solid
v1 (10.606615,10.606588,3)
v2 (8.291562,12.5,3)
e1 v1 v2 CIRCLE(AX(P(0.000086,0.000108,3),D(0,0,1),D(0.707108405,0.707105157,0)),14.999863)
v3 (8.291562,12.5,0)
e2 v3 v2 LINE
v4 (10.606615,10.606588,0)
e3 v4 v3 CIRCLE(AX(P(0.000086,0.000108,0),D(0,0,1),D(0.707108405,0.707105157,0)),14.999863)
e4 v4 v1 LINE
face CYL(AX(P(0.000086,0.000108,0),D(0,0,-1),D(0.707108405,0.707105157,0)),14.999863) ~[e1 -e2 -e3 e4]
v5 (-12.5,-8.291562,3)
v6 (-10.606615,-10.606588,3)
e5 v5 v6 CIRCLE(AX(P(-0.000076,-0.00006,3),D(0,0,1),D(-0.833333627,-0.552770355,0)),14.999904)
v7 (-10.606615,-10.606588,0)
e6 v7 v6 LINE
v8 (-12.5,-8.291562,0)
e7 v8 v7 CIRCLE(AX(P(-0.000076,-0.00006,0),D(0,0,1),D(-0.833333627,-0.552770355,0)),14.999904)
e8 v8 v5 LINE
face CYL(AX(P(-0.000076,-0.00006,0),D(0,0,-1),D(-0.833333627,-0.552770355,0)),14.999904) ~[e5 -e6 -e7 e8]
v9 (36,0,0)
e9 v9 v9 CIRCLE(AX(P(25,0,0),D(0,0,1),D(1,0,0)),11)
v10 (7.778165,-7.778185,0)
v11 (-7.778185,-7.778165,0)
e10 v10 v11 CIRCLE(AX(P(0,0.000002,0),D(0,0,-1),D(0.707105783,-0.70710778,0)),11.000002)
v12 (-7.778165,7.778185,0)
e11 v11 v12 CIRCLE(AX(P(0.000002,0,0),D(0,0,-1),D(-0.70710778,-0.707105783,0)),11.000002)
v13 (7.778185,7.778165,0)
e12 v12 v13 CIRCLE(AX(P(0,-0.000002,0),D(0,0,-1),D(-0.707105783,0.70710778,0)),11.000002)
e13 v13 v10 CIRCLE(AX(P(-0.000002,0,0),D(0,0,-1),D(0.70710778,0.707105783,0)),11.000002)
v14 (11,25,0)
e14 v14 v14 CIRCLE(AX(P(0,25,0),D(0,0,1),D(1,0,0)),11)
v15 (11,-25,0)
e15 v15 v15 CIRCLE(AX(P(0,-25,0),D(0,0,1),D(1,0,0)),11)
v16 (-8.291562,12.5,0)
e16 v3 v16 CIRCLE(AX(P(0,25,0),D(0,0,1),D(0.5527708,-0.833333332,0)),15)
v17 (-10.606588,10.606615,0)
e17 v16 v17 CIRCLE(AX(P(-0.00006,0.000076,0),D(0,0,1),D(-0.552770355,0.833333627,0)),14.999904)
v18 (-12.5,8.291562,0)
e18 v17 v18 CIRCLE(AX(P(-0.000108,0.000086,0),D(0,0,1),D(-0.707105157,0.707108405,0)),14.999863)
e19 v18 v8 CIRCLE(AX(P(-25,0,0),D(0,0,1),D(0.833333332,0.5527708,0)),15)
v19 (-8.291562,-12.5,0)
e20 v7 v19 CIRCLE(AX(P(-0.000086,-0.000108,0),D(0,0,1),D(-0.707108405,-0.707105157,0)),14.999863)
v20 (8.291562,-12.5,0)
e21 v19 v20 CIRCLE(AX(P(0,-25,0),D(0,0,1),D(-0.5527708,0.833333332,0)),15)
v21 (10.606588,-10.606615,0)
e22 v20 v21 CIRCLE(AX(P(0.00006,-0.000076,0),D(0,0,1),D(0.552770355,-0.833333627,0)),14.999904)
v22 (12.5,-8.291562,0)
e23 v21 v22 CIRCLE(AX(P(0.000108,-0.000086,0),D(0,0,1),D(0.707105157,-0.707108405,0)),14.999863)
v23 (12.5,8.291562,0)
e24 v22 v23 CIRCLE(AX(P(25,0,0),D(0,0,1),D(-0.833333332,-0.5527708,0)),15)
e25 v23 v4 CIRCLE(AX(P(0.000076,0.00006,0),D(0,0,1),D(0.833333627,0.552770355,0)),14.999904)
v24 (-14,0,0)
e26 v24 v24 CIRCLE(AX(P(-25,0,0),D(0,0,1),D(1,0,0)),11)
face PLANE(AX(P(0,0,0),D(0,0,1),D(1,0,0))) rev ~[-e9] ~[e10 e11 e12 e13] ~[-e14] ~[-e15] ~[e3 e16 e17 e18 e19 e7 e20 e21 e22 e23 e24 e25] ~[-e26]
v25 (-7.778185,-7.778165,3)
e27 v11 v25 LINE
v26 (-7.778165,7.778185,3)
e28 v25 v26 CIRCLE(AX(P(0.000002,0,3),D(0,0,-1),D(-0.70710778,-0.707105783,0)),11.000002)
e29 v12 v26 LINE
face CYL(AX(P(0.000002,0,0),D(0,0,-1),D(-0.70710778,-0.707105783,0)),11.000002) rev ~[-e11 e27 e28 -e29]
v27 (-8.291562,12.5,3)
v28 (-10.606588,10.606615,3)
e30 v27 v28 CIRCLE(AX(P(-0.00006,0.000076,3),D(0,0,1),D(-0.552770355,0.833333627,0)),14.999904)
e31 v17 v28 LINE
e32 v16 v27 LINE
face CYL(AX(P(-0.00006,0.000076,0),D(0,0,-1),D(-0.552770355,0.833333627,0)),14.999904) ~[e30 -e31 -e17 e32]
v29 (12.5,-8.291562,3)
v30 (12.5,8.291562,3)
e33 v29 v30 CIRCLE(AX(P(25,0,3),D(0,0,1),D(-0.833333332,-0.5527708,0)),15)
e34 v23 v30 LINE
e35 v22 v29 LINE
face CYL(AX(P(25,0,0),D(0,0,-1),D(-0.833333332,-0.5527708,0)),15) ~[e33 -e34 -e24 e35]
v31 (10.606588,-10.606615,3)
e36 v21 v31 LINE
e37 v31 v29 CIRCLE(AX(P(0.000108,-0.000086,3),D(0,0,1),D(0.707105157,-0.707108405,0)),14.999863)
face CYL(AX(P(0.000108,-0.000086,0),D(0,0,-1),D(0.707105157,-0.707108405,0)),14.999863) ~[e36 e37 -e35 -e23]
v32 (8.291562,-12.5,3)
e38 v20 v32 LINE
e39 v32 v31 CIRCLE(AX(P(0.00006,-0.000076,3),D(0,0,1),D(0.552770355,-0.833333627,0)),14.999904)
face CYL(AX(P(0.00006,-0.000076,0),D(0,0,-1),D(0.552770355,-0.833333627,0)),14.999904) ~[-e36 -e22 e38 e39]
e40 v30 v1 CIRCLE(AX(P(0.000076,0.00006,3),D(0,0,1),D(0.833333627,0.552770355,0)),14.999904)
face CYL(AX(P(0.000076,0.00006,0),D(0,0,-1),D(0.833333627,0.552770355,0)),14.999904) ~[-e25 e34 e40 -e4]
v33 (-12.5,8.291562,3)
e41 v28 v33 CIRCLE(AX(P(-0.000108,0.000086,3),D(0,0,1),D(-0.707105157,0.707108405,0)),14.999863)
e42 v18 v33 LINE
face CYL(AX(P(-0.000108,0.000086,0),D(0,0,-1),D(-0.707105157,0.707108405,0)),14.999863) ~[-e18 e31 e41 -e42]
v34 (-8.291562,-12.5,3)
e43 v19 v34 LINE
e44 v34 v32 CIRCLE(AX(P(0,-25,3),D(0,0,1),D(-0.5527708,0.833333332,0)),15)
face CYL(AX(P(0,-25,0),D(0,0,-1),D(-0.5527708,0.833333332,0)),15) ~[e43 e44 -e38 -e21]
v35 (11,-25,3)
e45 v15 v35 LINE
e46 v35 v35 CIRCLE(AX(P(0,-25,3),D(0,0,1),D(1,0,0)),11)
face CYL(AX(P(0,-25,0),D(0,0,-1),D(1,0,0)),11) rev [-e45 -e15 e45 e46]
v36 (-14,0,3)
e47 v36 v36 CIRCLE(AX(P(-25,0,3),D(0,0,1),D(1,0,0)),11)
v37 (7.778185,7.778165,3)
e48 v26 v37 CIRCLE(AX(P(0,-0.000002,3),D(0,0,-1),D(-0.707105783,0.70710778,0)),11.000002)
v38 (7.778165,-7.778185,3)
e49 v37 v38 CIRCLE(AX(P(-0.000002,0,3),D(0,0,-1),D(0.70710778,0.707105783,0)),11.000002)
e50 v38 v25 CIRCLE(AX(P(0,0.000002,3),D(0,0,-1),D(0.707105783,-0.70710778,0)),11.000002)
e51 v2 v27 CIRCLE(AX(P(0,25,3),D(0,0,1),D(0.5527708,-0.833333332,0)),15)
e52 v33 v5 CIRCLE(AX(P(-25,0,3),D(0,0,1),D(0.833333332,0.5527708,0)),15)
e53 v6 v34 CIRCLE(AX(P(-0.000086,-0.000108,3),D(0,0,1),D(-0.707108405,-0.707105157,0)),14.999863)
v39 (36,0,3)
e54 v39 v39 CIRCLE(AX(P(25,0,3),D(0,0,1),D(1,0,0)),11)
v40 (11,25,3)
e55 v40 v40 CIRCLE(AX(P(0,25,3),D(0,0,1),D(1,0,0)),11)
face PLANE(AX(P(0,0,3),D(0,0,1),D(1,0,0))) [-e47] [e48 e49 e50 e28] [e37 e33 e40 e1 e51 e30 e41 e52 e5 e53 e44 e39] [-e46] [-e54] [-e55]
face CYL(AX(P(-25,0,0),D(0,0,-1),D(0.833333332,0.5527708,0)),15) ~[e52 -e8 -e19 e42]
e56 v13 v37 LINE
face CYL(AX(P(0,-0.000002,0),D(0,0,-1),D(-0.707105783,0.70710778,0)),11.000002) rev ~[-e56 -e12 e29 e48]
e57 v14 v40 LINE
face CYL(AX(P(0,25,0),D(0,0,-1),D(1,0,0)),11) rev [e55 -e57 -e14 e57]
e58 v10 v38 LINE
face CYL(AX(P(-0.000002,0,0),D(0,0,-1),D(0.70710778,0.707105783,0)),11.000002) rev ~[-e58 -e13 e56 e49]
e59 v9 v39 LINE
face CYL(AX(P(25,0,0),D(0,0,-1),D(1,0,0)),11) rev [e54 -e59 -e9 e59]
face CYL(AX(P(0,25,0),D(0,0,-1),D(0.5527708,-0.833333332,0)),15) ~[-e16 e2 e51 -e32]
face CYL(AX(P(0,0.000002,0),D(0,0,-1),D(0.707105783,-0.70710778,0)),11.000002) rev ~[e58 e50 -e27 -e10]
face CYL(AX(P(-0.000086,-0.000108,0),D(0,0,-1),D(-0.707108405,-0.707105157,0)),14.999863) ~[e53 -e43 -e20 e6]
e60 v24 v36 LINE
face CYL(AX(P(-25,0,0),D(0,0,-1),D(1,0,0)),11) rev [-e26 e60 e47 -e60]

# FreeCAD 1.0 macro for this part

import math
import FreeCAD as App
import Part
import Sketcher

doc = App.newDocument("Part")
body = doc.addObject("PartDesign::Body", "Body")

# Sketch on XY plane
sketch1 = doc.addObject("Sketcher::SketchObject", "Sketch")
body.addObject(sketch1)
sketch1.AttachmentSupport = (doc.XY_Plane, [""])
sketch1.MapMode = "FlatFace"
sketch1.addGeometry(Part.ArcOfCircle(Part.Circle(App.Vector(0, 25, 0), App.Vector(0, 0, 1), 15), math.radians(-56.44269), math.radians(236.44269)), False)
sketch1.addGeometry(Part.ArcOfCircle(Part.Circle(App.Vector(-0.00006, 0.000076, 0), App.Vector(0, 0, 1), 14.999904), math.radians(123.557279), math.radians(134.99997)), False)
sketch1.addGeometry(Part.ArcOfCircle(Part.Circle(App.Vector(-0.000108, 0.000086, 0), App.Vector(0, 0, 1), 14.999863), math.radians(134.999868), math.radians(146.442737)), False)
sketch1.addGeometry(Part.ArcOfCircle(Part.Circle(App.Vector(-25, 0, 0), App.Vector(0, 0, 1), 15), math.radians(33.55731), math.radians(326.44269)), False)
sketch1.addGeometry(Part.ArcOfCircle(Part.Circle(App.Vector(-0.000076, -0.00006, 0), App.Vector(0, 0, 1), 14.999904), math.radians(-146.442721), math.radians(-135.00003)), False)
sketch1.addGeometry(Part.ArcOfCircle(Part.Circle(App.Vector(-0.000086, -0.000108, 0), App.Vector(0, 0, 1), 14.999863), math.radians(-135.000132), math.radians(-123.557263)), False)
sketch1.addGeometry(Part.ArcOfCircle(Part.Circle(App.Vector(0, -25, 0), App.Vector(0, 0, 1), 15), math.radians(123.55731), math.radians(416.44269)), False)
sketch1.addGeometry(Part.ArcOfCircle(Part.Circle(App.Vector(0.00006, -0.000076, 0), App.Vector(0, 0, 1), 14.999904), math.radians(-56.442721), math.radians(-45.00003)), False)
sketch1.addGeometry(Part.ArcOfCircle(Part.Circle(App.Vector(0.000108, -0.000086, 0), App.Vector(0, 0, 1), 14.999863), math.radians(-45.000132), math.radians(-33.557263)), False)
sketch1.addGeometry(Part.ArcOfCircle(Part.Circle(App.Vector(25, 0, 0), App.Vector(0, 0, 1), 15), math.radians(-146.44269), math.radians(146.44269)), False)
sketch1.addGeometry(Part.ArcOfCircle(Part.Circle(App.Vector(0.000076, 0.00006, 0), App.Vector(0, 0, 1), 14.999904), math.radians(33.557279), math.radians(44.99997)), False)
sketch1.addGeometry(Part.ArcOfCircle(Part.Circle(App.Vector(0.000086, 0.000108, 0), App.Vector(0, 0, 1), 14.999863), math.radians(44.999868), math.radians(56.442737)), False)
sketch1.addGeometry(Part.Circle(App.Vector(0, -25, 0), App.Vector(0, 0, 1), 11), False)
sketch1.addGeometry(Part.Circle(App.Vector(-25, 0, 0), App.Vector(0, 0, 1), 11), False)
sketch1.addGeometry(Part.ArcOfCircle(Part.Circle(App.Vector(0.000002, 0, 0), App.Vector(0, 0, 1), 11.000002), math.radians(134.999934), math.radians(224.999919)), False)
sketch1.addGeometry(Part.ArcOfCircle(Part.Circle(App.Vector(0, -0.000002, 0), App.Vector(0, 0, 1), 11.000002), math.radians(44.999934), math.radians(134.999919)), False)
sketch1.addGeometry(Part.ArcOfCircle(Part.Circle(App.Vector(-0.000002, 0, 0), App.Vector(0, 0, 1), 11.000002), math.radians(-45.000066), math.radians(44.999919)), False)
sketch1.addGeometry(Part.ArcOfCircle(Part.Circle(App.Vector(0, 0.000002, 0), App.Vector(0, 0, 1), 11.000002), math.radians(-135.000066), math.radians(-45.000081)), False)
sketch1.addGeometry(Part.Circle(App.Vector(25, 0, 0), App.Vector(0, 0, 1), 11), False)
sketch1.addGeometry(Part.Circle(App.Vector(0, 25, 0), App.Vector(0, 0, 1), 11), False)
sketch1.addConstraint(Sketcher.Constraint("Coincident", 0, 2, 1, 1))
sketch1.addConstraint(Sketcher.Constraint("Tangent", 1, 2, 2, 1))
sketch1.addConstraint(Sketcher.Constraint("Coincident", 2, 2, 3, 1))
sketch1.addConstraint(Sketcher.Constraint("Coincident", 3, 2, 4, 1))
sketch1.addConstraint(Sketcher.Constraint("Tangent", 4, 2, 5, 1))
sketch1.addConstraint(Sketcher.Constraint("Coincident", 5, 2, 6, 1))
sketch1.addConstraint(Sketcher.Constraint("Coincident", 6, 2, 7, 1))
sketch1.addConstraint(Sketcher.Constraint("Tangent", 7, 2, 8, 1))
sketch1.addConstraint(Sketcher.Constraint("Coincident", 8, 2, 9, 1))
sketch1.addConstraint(Sketcher.Constraint("Coincident", 9, 2, 10, 1))
sketch1.addConstraint(Sketcher.Constraint("Tangent", 10, 2, 11, 1))
sketch1.addConstraint(Sketcher.Constraint("Coincident", 11, 2, 0, 1))
sketch1.addConstraint(Sketcher.Constraint("Tangent", 14, 1, 15, 2))
sketch1.addConstraint(Sketcher.Constraint("Tangent", 15, 1, 16, 2))
sketch1.addConstraint(Sketcher.Constraint("Tangent", 16, 1, 17, 2))
sketch1.addConstraint(Sketcher.Constraint("Tangent", 17, 1, 14, 2))
sketch1.addConstraint(Sketcher.Constraint("Coincident", 14, 3, -1, 1))
sketch1.addConstraint(Sketcher.Constraint("Coincident", 12, 3, 6, 3))
sketch1.addConstraint(Sketcher.Constraint("Coincident", 13, 3, 3, 3))
sketch1.addConstraint(Sketcher.Constraint("Coincident", 18, 3, 9, 3))
sketch1.addConstraint(Sketcher.Constraint("Coincident", 19, 3, 0, 3))
sketch1.addConstraint(Sketcher.Constraint("Equal", 0, 3))
sketch1.addConstraint(Sketcher.Constraint("Equal", 1, 4))
sketch1.addConstraint(Sketcher.Constraint("Equal", 2, 5))
sketch1.addConstraint(Sketcher.Constraint("Equal", 3, 6))
sketch1.addConstraint(Sketcher.Constraint("Equal", 4, 7))
sketch1.addConstraint(Sketcher.Constraint("Equal", 5, 8))
sketch1.addConstraint(Sketcher.Constraint("Equal", 6, 9))
sketch1.addConstraint(Sketcher.Constraint("Equal", 7, 10))
sketch1.addConstraint(Sketcher.Constraint("Equal", 8, 11))
sketch1.addConstraint(Sketcher.Constraint("Equal", 12, 13))
sketch1.addConstraint(Sketcher.Constraint("Equal", 13, 14))
sketch1.addConstraint(Sketcher.Constraint("Equal", 14, 15))
sketch1.addConstraint(Sketcher.Constraint("Equal", 17, 18))
sketch1.addConstraint(Sketcher.Constraint("Equal", 18, 19))
sketch1.addConstraint(Sketcher.Constraint("Symmetric", 0, 3, 6, 3, -1, 1))
sketch1.addConstraint(Sketcher.Constraint("Symmetric", 1, 3, 7, 3, -1, 1))
sketch1.addConstraint(Sketcher.Constraint("Symmetric", 3, 3, 9, 3, -1, 1))
sketch1.addConstraint(Sketcher.Constraint("Symmetric", 4, 3, 10, 3, -1, 1))
sketch1.addConstraint(Sketcher.Constraint("Symmetric", 5, 2, 6, 2, -2))
sketch1.addConstraint(Sketcher.Constraint("Symmetric", 3, 2, 8, 2, -2))
sketch1.addConstraint(Sketcher.Constraint("Diameter", 12, 22.0))
sketch1.addConstraint(Sketcher.Constraint("Radius", 0, 15.0))
sketch1.addConstraint(Sketcher.Constraint("DistanceY", -1, 1, 0, 3, 25.0))
sketch1.addConstraint(Sketcher.Constraint("DistanceX", 3, 3, -1, 1, 25.0))
sketch1.addConstraint(Sketcher.Constraint("DistanceY", -1, 1, 0, 2, 12.5))
sketch1.addConstraint(Sketcher.Constraint("DistanceX", 2, 2, -1, 1, 12.5))
sketch1.addConstraint(Sketcher.Constraint("Radius", 1, 14.999904))
sketch1.addConstraint(Sketcher.Constraint("Radius", 2, 14.999863))
sketch1.addConstraint(Sketcher.Constraint("DistanceY", 2, 3, 14, 1, 7.778099))
sketch1.addConstraint(Sketcher.Constraint("DistanceX", 11, 3, 15, 1, 7.778099))
sketch1.addConstraint(Sketcher.Constraint("DistanceY", 16, 1, 8, 3, 7.778099))
sketch1.addConstraint(Sketcher.Constraint("DistanceX", 17, 1, 5, 3, 7.778099))
sketch1.addConstraint(Sketcher.Constraint("DistanceX", 1, 2, -1, 1, 10.606588))
sketch1.addConstraint(Sketcher.Constraint("DistanceY", 4, 2, -1, 1, 10.606588))
sketch1.addConstraint(Sketcher.Constraint("DistanceX", -1, 1, 7, 2, 10.606588))
sketch1.addConstraint(Sketcher.Constraint("DistanceY", -1, 1, 10, 2, 10.606588))
pad1 = doc.addObject("PartDesign::Pad", "Pad")
body.addObject(pad1)
pad1.Profile = sketch1
pad1.Length = 3

doc.recompute()
